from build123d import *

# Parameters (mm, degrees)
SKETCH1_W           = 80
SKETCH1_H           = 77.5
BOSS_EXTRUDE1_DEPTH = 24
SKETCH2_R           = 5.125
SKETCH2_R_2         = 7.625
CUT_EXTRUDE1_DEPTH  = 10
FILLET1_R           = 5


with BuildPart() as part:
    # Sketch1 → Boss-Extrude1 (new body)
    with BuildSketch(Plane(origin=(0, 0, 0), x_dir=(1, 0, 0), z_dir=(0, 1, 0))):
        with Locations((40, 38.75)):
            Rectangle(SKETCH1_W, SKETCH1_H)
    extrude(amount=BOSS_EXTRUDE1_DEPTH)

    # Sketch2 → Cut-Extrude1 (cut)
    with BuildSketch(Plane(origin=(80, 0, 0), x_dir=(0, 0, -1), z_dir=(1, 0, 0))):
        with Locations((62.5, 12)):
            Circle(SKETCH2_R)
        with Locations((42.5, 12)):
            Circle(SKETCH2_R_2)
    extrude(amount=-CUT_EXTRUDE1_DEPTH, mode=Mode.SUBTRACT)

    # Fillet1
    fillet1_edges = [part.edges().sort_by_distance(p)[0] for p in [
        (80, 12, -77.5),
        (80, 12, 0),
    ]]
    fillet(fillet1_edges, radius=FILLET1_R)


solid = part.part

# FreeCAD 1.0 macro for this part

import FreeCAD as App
import Part
import Sketcher

V = App.Vector


def edges_at(feature, points):
    """Names of the edges that pass closest to the given points."""
    edges = feature.Shape.Edges
    near = lambda p: min(range(len(edges)), key=lambda i: edges[i].distToShape(Part.Vertex(*p))[0])
    return sorted({f"Edge{near(p) + 1}" for p in points})

doc = App.newDocument("Part")
params = doc.addObject("Spreadsheet::Sheet", "Params")
for row, (alias, value) in enumerate([
    ("sketch1_width", "80 mm"),
    ("sketch1_height", "77.5 mm"),
    ("pad1_length", "24 mm"),
    ("sketch2_diameter", "10.25 mm"),
    ("sketch2_diameter2", "15.25 mm"),
    ("pocket1_length", "10 mm"),
    ("fillet_radius", "5 mm"),
], start=1):
    params.set(f"A{row}", alias)
    params.set(f"B{row}", "=" + value)
    params.setAlias(f"B{row}", alias)

body = doc.addObject("PartDesign::Body", "Body")

sketch1 = doc.addObject("Sketcher::SketchObject", "Sketch")
body.addObject(sketch1)
sketch1.AttachmentSupport = (doc.XZ_Plane, [""])
sketch1.MapMode = "FlatFace"
sketch1.addGeometry(Part.LineSegment(V(0, -78, 0), V(0, 0, 0)), False)
sketch1.addGeometry(Part.LineSegment(V(0, 0, 0), V(80, 0, 0)), False)
sketch1.addGeometry(Part.LineSegment(V(80, 0, 0), V(80, -78, 0)), False)
sketch1.addGeometry(Part.LineSegment(V(80, -78, 0), V(0, -78, 0)), False)
sketch1.addConstraint(Sketcher.Constraint("Coincident", 0, 2, 1, 1))
sketch1.addConstraint(Sketcher.Constraint("Coincident", 1, 2, 2, 1))
sketch1.addConstraint(Sketcher.Constraint("Coincident", 2, 2, 3, 1))
sketch1.addConstraint(Sketcher.Constraint("Coincident", 3, 2, 0, 1))
sketch1.addConstraint(Sketcher.Constraint("Vertical", 0))
sketch1.addConstraint(Sketcher.Constraint("Horizontal", 1))
sketch1.addConstraint(Sketcher.Constraint("Vertical", 2))
sketch1.addConstraint(Sketcher.Constraint("Horizontal", 3))
sketch1.addConstraint(Sketcher.Constraint("Coincident", 0, 2, -1, 1))
sketch1.addConstraint(Sketcher.Constraint("DistanceX", 1, 1, 1, 2, 80.0))
sketch1.addConstraint(Sketcher.Constraint("DistanceY", 0, 1, 0, 2, 77.5))
sketch1.setExpression("Constraints[9]", "Params.sketch1_width")
sketch1.setExpression("Constraints[10]", "Params.sketch1_height")
pad1 = doc.addObject("PartDesign::Pad", "Pad")
body.addObject(pad1)
pad1.Profile = sketch1
pad1.setExpression("Length", "Params.pad1_length")
pad1.Reversed = True

sketch2 = doc.addObject("Sketcher::SketchObject", "Sketch001")
body.addObject(sketch2)
sketch2.AttachmentSupport = (doc.YZ_Plane, [""])
sketch2.MapMode = "FlatFace"
sketch2.AttachmentOffset = App.Placement(V(0, 0, 80), App.Rotation())
sketch2.addGeometry(Part.Circle(V(12, -62, 0), V(0, 0, 1), 5), False)
sketch2.addGeometry(Part.Circle(V(12, -42, 0), V(0, 0, 1), 8), False)
sketch2.addConstraint(Sketcher.Constraint("Vertical", 0, 3, 1, 3))
sketch2.addConstraint(Sketcher.Constraint("Diameter", 0, 10.25))
sketch2.addConstraint(Sketcher.Constraint("Diameter", 1, 15.25))
sketch2.addConstraint(Sketcher.Constraint("DistanceX", -1, 1, 0, 3, 12.0))
sketch2.addConstraint(Sketcher.Constraint("DistanceY", 0, 3, 1, 3, 20.0))
sketch2.addConstraint(Sketcher.Constraint("DistanceY", 0, 3, -1, 1, 62.5))
sketch2.setExpression("Constraints[1]", "Params.sketch2_diameter")
sketch2.setExpression("Constraints[2]", "Params.sketch2_diameter2")
pocket1 = doc.addObject("PartDesign::Pocket", "Pocket")
body.addObject(pocket1)
pocket1.Profile = sketch2
pocket1.setExpression("Length", "Params.pocket1_length")
doc.recompute()

fillet = doc.addObject("PartDesign::Fillet", "Fillet")
body.addObject(fillet)
fillet.Base = (pocket1, edges_at(pocket1, [(80, 12, -77.5), (80, 12, 0)]))
fillet.setExpression("Radius", "Params.fillet_radius")

doc.recompute()
